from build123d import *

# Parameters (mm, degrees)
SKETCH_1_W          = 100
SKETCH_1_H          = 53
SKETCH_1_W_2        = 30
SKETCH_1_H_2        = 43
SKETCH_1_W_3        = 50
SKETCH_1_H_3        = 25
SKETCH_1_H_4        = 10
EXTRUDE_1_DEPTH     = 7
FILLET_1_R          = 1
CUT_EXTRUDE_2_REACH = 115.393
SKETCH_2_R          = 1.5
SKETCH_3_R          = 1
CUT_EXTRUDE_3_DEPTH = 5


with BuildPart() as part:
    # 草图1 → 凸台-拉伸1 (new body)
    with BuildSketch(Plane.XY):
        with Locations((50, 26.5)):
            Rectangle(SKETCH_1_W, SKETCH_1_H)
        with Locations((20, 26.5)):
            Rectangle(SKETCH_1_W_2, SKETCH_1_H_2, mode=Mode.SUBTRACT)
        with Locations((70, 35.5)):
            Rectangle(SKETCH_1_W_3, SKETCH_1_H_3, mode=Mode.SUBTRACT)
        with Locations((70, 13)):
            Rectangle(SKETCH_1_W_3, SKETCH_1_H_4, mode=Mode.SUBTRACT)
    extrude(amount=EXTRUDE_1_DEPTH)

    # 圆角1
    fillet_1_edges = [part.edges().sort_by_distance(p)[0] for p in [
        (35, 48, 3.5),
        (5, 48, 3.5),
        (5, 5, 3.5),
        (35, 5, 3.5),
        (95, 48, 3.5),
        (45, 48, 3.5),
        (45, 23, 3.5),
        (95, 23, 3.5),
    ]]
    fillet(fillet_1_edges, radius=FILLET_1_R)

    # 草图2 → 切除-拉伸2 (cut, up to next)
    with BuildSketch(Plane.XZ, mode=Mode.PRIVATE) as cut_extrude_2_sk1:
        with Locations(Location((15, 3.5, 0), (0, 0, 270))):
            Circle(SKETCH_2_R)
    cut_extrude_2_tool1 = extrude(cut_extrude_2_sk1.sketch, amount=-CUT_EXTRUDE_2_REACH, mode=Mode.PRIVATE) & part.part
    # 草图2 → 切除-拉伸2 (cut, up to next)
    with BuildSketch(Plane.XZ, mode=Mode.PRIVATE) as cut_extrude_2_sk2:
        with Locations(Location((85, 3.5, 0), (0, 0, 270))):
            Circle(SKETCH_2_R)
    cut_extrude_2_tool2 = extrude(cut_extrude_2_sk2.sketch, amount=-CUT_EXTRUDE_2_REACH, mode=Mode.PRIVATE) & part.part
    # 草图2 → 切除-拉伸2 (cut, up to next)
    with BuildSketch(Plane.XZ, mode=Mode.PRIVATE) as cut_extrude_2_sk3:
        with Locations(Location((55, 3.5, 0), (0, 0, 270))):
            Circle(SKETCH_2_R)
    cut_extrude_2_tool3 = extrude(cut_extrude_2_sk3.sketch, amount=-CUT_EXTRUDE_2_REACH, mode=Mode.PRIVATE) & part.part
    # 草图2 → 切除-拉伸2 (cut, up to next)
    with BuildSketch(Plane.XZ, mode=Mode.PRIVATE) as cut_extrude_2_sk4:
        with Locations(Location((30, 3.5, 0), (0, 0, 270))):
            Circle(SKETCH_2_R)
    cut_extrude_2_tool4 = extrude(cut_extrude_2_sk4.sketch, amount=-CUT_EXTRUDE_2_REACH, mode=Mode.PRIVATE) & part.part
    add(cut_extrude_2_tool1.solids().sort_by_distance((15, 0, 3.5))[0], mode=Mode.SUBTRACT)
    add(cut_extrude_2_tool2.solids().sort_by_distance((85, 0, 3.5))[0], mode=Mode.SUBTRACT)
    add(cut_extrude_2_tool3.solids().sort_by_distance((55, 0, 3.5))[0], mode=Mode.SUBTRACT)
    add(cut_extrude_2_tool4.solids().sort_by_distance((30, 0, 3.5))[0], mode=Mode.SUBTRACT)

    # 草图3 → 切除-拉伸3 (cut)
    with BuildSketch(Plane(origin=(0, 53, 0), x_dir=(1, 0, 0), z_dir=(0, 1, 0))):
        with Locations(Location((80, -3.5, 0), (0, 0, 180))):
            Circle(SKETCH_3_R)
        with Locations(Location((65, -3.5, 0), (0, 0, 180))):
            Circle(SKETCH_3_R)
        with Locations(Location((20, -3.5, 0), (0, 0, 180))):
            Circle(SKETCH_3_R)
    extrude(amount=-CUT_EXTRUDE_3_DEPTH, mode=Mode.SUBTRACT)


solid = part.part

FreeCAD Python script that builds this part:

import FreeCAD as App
import Part
import Sketcher
from FreeCAD import Vector


def edges_at(feature, points):
    """Names of the edges that pass closest to the given points."""
    edges = feature.Shape.Edges
    near = lambda p: min(range(len(edges)), key=lambda i: edges[i].distToShape(Part.Vertex(*p))[0])
    return sorted({f"Edge{near(p) + 1}" for p in points})

doc = App.newDocument("Part")
body = doc.addObject("PartDesign::Body", "Body")

# Sketch on XY plane
sketch1 = body.newObject("Sketcher::SketchObject", "Sketch")
sketch1.AttachmentSupport = (doc.getObject("XY_Plane"), [""])
sketch1.MapMode = "FlatFace"
sketch1.addGeometry(Part.LineSegment(Vector(0, 53, 0), Vector(0, 0, 0)), False)
sketch1.addGeometry(Part.LineSegment(Vector(0, 0, 0), Vector(100, 0, 0)), False)
sketch1.addGeometry(Part.LineSegment(Vector(100, 0, 0), Vector(100, 53, 0)), False)
sketch1.addGeometry(Part.LineSegment(Vector(100, 53, 0), Vector(0, 53, 0)), False)
sketch1.addGeometry(Part.LineSegment(Vector(95, 8, 0), Vector(45, 8, 0)), False)
sketch1.addGeometry(Part.LineSegment(Vector(45, 8, 0), Vector(45, 18, 0)), False)
sketch1.addGeometry(Part.LineSegment(Vector(45, 18, 0), Vector(95, 18, 0)), False)
sketch1.addGeometry(Part.LineSegment(Vector(95, 18, 0), Vector(95, 8, 0)), False)
sketch1.addGeometry(Part.LineSegment(Vector(35, 5, 0), Vector(5, 5, 0)), False)
sketch1.addGeometry(Part.LineSegment(Vector(5, 5, 0), Vector(5, 48, 0)), False)
sketch1.addGeometry(Part.LineSegment(Vector(5, 48, 0), Vector(35, 48, 0)), False)
sketch1.addGeometry(Part.LineSegment(Vector(35, 48, 0), Vector(35, 5, 0)), False)
sketch1.addGeometry(Part.LineSegment(Vector(95, 23, 0), Vector(45, 23, 0)), False)
sketch1.addGeometry(Part.LineSegment(Vector(45, 23, 0), Vector(45, 48, 0)), False)
sketch1.addGeometry(Part.LineSegment(Vector(45, 48, 0), Vector(95, 48, 0)), False)
sketch1.addGeometry(Part.LineSegment(Vector(95, 48, 0), Vector(95, 23, 0)), False)
sketch1.addConstraint(Sketcher.Constraint("Coincident", 0, 2, 1, 1))
sketch1.addConstraint(Sketcher.Constraint("Coincident", 1, 2, 2, 1))
sketch1.addConstraint(Sketcher.Constraint("Coincident", 2, 2, 3, 1))
sketch1.addConstraint(Sketcher.Constraint("Coincident", 3, 2, 0, 1))
sketch1.addConstraint(Sketcher.Constraint("Coincident", 4, 2, 5, 1))
sketch1.addConstraint(Sketcher.Constraint("Coincident", 5, 2, 6, 1))
sketch1.addConstraint(Sketcher.Constraint("Coincident", 6, 2, 7, 1))
sketch1.addConstraint(Sketcher.Constraint("Coincident", 7, 2, 4, 1))
sketch1.addConstraint(Sketcher.Constraint("Coincident", 8, 2, 9, 1))
sketch1.addConstraint(Sketcher.Constraint("Coincident", 9, 2, 10, 1))
sketch1.addConstraint(Sketcher.Constraint("Coincident", 10, 2, 11, 1))
sketch1.addConstraint(Sketcher.Constraint("Coincident", 11, 2, 8, 1))
sketch1.addConstraint(Sketcher.Constraint("Coincident", 12, 2, 13, 1))
sketch1.addConstraint(Sketcher.Constraint("Coincident", 13, 2, 14, 1))
sketch1.addConstraint(Sketcher.Constraint("Coincident", 14, 2, 15, 1))
sketch1.addConstraint(Sketcher.Constraint("Coincident", 15, 2, 12, 1))
sketch1.addConstraint(Sketcher.Constraint("Vertical", 0))
sketch1.addConstraint(Sketcher.Constraint("Horizontal", 1))
sketch1.addConstraint(Sketcher.Constraint("Vertical", 2))
sketch1.addConstraint(Sketcher.Constraint("Horizontal", 3))
sketch1.addConstraint(Sketcher.Constraint("Horizontal", 4))
sketch1.addConstraint(Sketcher.Constraint("Vertical", 5))
sketch1.addConstraint(Sketcher.Constraint("Horizontal", 6))
sketch1.addConstraint(Sketcher.Constraint("Vertical", 7))
sketch1.addConstraint(Sketcher.Constraint("Horizontal", 8))
sketch1.addConstraint(Sketcher.Constraint("Vertical", 9))
sketch1.addConstraint(Sketcher.Constraint("Horizontal", 10))
sketch1.addConstraint(Sketcher.Constraint("Vertical", 11))
sketch1.addConstraint(Sketcher.Constraint("Horizontal", 12))
sketch1.addConstraint(Sketcher.Constraint("Vertical", 13))
sketch1.addConstraint(Sketcher.Constraint("Horizontal", 14))
sketch1.addConstraint(Sketcher.Constraint("Vertical", 15))
sketch1.addConstraint(Sketcher.Constraint("Coincident", 0, 2, -1, 1))
sketch1.addConstraint(Sketcher.Constraint("Horizontal", 10, 2, 13, 2))
sketch1.addConstraint(Sketcher.Constraint("Vertical", 5, 2, 12, 2))
sketch1.addConstraint(Sketcher.Constraint("Vertical", 7, 2, 14, 2))
sketch1.addConstraint(Sketcher.Constraint("DistanceX", 1, 1, 1, 2, 100.0))
sketch1.addConstraint(Sketcher.Constraint("DistanceX", 4, 2, 4, 1, 50.0))
sketch1.addConstraint(Sketcher.Constraint("DistanceX", 8, 2, 8, 1, 30.0))
sketch1.addConstraint(Sketcher.Constraint("DistanceY", 0, 2, 0, 1, 53.0))
sketch1.addConstraint(Sketcher.Constraint("DistanceY", 5, 1, 5, 2, 10.0))
sketch1.addConstraint(Sketcher.Constraint("DistanceY", 9, 1, 9, 2, 43.0))
sketch1.addConstraint(Sketcher.Constraint("DistanceY", 13, 1, 13, 2, 25.0))
sketch1.addConstraint(Sketcher.Constraint("DistanceX", -1, 1, 4, 2, 45.0))
sketch1.addConstraint(Sketcher.Constraint("DistanceY", -1, 1, 4, 2, 8.0))
sketch1.addConstraint(Sketcher.Constraint("DistanceX", -1, 1, 8, 2, 5.0))
sketch1.addConstraint(Sketcher.Constraint("DistanceY", -1, 1, 8, 2, 5.0))
pad1 = body.newObject("PartDesign::Pad", "Pad")
pad1.Profile = sketch1
pad1.Length = 7
doc.recompute()

fillet = body.newObject("PartDesign::Fillet", "Fillet")
fillet.Base = (pad1, edges_at(pad1, [
    (35, 48, 3.5),
    (5, 48, 3.5),
    (5, 5, 3.5),
    (35, 5, 3.5),
    (95, 48, 3.5),
    (45, 48, 3.5),
    (45, 23, 3.5),
    (95, 23, 3.5),
]))
fillet.Radius = 1

# Sketch on XZ plane
sketch2 = body.newObject("Sketcher::SketchObject", "Sketch001")
sketch2.AttachmentSupport = (doc.getObject("XZ_Plane"), [""])
sketch2.MapMode = "FlatFace"
sketch2.addGeometry(Part.Circle(Vector(15, 3.5, 0), Vector(0, 0, 1), 1.5), False)
sketch2.addConstraint(Sketcher.Constraint("Diameter", 0, 3.0))
sketch2.addConstraint(Sketcher.Constraint("DistanceX", -1, 1, 0, 3, 15.0))
sketch2.addConstraint(Sketcher.Constraint("DistanceY", -1, 1, 0, 3, 3.5))
pocket1 = body.newObject("PartDesign::Pocket", "Pocket")
pocket1.Profile = sketch2
pocket1.Type = "UpToFirst"

# Sketch on XZ plane
sketch3 = body.newObject("Sketcher::SketchObject", "Sketch002")
sketch3.AttachmentSupport = (doc.getObject("XZ_Plane"), [""])
sketch3.MapMode = "FlatFace"
sketch3.addGeometry(Part.Circle(Vector(85, 3.5, 0), Vector(0, 0, 1), 1.5), False)
sketch3.addConstraint(Sketcher.Constraint("Diameter", 0, 3.0))
sketch3.addConstraint(Sketcher.Constraint("DistanceX", -1, 1, 0, 3, 85.0))
sketch3.addConstraint(Sketcher.Constraint("DistanceY", -1, 1, 0, 3, 3.5))
pocket2 = body.newObject("PartDesign::Pocket", "Pocket001")
pocket2.Profile = sketch3
pocket2.Type = "UpToFirst"

# Sketch on XZ plane
sketch4 = body.newObject("Sketcher::SketchObject", "Sketch003")
sketch4.AttachmentSupport = (doc.getObject("XZ_Plane"), [""])
sketch4.MapMode = "FlatFace"
sketch4.addGeometry(Part.Circle(Vector(55, 3.5, 0), Vector(0, 0, 1), 1.5), False)
sketch4.addConstraint(Sketcher.Constraint("Diameter", 0, 3.0))
sketch4.addConstraint(Sketcher.Constraint("DistanceX", -1, 1, 0, 3, 55.0))
sketch4.addConstraint(Sketcher.Constraint("DistanceY", -1, 1, 0, 3, 3.5))
pocket3 = body.newObject("PartDesign::Pocket", "Pocket002")
pocket3.Profile = sketch4
pocket3.Type = "UpToFirst"

# Sketch on XZ plane
sketch5 = body.newObject("Sketcher::SketchObject", "Sketch004")
sketch5.AttachmentSupport = (doc.getObject("XZ_Plane"), [""])
sketch5.MapMode = "FlatFace"
sketch5.addGeometry(Part.Circle(Vector(30, 3.5, 0), Vector(0, 0, 1), 1.5), False)
sketch5.addConstraint(Sketcher.Constraint("Diameter", 0, 3.0))
sketch5.addConstraint(Sketcher.Constraint("DistanceX", -1, 1, 0, 3, 30.0))
sketch5.addConstraint(Sketcher.Constraint("DistanceY", -1, 1, 0, 3, 3.5))
pocket4 = body.newObject("PartDesign::Pocket", "Pocket003")
pocket4.Profile = sketch5
pocket4.Type = "UpToFirst"

# Sketch on XZ plane
sketch6 = body.newObject("Sketcher::SketchObject", "Sketch005")
sketch6.AttachmentSupport = (doc.getObject("XZ_Plane"), [""])
sketch6.MapMode = "FlatFace"
sketch6.AttachmentOffset = App.Placement(Vector(0, 0, -53), App.Rotation())
sketch6.addGeometry(Part.Circle(Vector(80, 3.5, 0), Vector(0, 0, 1), 1), False)
sketch6.addGeometry(Part.Circle(Vector(65, 3.5, 0), Vector(0, 0, 1), 1), False)
sketch6.addGeometry(Part.Circle(Vector(20, 3.5, 0), Vector(0, 0, 1), 1), False)
sketch6.addConstraint(Sketcher.Constraint("Equal", 0, 1))
sketch6.addConstraint(Sketcher.Constraint("Equal", 1, 2))
sketch6.addConstraint(Sketcher.Constraint("Horizontal", 0, 3, 1, 3))
sketch6.addConstraint(Sketcher.Constraint("Horizontal", 1, 3, 2, 3))
sketch6.addConstraint(Sketcher.Constraint("Diameter", 0, 2.0))
sketch6.addConstraint(Sketcher.Constraint("DistanceX", -1, 1, 0, 3, 80.0))
sketch6.addConstraint(Sketcher.Constraint("DistanceX", -1, 1, 1, 3, 65.0))
sketch6.addConstraint(Sketcher.Constraint("DistanceX", -1, 1, 2, 3, 20.0))
sketch6.addConstraint(Sketcher.Constraint("DistanceY", -1, 1, 0, 3, 3.5))
pocket5 = body.newObject("PartDesign::Pocket", "Pocket004")
pocket5.Profile = sketch6
pocket5.Length = 5
pocket5.Reversed = True

doc.recompute()
